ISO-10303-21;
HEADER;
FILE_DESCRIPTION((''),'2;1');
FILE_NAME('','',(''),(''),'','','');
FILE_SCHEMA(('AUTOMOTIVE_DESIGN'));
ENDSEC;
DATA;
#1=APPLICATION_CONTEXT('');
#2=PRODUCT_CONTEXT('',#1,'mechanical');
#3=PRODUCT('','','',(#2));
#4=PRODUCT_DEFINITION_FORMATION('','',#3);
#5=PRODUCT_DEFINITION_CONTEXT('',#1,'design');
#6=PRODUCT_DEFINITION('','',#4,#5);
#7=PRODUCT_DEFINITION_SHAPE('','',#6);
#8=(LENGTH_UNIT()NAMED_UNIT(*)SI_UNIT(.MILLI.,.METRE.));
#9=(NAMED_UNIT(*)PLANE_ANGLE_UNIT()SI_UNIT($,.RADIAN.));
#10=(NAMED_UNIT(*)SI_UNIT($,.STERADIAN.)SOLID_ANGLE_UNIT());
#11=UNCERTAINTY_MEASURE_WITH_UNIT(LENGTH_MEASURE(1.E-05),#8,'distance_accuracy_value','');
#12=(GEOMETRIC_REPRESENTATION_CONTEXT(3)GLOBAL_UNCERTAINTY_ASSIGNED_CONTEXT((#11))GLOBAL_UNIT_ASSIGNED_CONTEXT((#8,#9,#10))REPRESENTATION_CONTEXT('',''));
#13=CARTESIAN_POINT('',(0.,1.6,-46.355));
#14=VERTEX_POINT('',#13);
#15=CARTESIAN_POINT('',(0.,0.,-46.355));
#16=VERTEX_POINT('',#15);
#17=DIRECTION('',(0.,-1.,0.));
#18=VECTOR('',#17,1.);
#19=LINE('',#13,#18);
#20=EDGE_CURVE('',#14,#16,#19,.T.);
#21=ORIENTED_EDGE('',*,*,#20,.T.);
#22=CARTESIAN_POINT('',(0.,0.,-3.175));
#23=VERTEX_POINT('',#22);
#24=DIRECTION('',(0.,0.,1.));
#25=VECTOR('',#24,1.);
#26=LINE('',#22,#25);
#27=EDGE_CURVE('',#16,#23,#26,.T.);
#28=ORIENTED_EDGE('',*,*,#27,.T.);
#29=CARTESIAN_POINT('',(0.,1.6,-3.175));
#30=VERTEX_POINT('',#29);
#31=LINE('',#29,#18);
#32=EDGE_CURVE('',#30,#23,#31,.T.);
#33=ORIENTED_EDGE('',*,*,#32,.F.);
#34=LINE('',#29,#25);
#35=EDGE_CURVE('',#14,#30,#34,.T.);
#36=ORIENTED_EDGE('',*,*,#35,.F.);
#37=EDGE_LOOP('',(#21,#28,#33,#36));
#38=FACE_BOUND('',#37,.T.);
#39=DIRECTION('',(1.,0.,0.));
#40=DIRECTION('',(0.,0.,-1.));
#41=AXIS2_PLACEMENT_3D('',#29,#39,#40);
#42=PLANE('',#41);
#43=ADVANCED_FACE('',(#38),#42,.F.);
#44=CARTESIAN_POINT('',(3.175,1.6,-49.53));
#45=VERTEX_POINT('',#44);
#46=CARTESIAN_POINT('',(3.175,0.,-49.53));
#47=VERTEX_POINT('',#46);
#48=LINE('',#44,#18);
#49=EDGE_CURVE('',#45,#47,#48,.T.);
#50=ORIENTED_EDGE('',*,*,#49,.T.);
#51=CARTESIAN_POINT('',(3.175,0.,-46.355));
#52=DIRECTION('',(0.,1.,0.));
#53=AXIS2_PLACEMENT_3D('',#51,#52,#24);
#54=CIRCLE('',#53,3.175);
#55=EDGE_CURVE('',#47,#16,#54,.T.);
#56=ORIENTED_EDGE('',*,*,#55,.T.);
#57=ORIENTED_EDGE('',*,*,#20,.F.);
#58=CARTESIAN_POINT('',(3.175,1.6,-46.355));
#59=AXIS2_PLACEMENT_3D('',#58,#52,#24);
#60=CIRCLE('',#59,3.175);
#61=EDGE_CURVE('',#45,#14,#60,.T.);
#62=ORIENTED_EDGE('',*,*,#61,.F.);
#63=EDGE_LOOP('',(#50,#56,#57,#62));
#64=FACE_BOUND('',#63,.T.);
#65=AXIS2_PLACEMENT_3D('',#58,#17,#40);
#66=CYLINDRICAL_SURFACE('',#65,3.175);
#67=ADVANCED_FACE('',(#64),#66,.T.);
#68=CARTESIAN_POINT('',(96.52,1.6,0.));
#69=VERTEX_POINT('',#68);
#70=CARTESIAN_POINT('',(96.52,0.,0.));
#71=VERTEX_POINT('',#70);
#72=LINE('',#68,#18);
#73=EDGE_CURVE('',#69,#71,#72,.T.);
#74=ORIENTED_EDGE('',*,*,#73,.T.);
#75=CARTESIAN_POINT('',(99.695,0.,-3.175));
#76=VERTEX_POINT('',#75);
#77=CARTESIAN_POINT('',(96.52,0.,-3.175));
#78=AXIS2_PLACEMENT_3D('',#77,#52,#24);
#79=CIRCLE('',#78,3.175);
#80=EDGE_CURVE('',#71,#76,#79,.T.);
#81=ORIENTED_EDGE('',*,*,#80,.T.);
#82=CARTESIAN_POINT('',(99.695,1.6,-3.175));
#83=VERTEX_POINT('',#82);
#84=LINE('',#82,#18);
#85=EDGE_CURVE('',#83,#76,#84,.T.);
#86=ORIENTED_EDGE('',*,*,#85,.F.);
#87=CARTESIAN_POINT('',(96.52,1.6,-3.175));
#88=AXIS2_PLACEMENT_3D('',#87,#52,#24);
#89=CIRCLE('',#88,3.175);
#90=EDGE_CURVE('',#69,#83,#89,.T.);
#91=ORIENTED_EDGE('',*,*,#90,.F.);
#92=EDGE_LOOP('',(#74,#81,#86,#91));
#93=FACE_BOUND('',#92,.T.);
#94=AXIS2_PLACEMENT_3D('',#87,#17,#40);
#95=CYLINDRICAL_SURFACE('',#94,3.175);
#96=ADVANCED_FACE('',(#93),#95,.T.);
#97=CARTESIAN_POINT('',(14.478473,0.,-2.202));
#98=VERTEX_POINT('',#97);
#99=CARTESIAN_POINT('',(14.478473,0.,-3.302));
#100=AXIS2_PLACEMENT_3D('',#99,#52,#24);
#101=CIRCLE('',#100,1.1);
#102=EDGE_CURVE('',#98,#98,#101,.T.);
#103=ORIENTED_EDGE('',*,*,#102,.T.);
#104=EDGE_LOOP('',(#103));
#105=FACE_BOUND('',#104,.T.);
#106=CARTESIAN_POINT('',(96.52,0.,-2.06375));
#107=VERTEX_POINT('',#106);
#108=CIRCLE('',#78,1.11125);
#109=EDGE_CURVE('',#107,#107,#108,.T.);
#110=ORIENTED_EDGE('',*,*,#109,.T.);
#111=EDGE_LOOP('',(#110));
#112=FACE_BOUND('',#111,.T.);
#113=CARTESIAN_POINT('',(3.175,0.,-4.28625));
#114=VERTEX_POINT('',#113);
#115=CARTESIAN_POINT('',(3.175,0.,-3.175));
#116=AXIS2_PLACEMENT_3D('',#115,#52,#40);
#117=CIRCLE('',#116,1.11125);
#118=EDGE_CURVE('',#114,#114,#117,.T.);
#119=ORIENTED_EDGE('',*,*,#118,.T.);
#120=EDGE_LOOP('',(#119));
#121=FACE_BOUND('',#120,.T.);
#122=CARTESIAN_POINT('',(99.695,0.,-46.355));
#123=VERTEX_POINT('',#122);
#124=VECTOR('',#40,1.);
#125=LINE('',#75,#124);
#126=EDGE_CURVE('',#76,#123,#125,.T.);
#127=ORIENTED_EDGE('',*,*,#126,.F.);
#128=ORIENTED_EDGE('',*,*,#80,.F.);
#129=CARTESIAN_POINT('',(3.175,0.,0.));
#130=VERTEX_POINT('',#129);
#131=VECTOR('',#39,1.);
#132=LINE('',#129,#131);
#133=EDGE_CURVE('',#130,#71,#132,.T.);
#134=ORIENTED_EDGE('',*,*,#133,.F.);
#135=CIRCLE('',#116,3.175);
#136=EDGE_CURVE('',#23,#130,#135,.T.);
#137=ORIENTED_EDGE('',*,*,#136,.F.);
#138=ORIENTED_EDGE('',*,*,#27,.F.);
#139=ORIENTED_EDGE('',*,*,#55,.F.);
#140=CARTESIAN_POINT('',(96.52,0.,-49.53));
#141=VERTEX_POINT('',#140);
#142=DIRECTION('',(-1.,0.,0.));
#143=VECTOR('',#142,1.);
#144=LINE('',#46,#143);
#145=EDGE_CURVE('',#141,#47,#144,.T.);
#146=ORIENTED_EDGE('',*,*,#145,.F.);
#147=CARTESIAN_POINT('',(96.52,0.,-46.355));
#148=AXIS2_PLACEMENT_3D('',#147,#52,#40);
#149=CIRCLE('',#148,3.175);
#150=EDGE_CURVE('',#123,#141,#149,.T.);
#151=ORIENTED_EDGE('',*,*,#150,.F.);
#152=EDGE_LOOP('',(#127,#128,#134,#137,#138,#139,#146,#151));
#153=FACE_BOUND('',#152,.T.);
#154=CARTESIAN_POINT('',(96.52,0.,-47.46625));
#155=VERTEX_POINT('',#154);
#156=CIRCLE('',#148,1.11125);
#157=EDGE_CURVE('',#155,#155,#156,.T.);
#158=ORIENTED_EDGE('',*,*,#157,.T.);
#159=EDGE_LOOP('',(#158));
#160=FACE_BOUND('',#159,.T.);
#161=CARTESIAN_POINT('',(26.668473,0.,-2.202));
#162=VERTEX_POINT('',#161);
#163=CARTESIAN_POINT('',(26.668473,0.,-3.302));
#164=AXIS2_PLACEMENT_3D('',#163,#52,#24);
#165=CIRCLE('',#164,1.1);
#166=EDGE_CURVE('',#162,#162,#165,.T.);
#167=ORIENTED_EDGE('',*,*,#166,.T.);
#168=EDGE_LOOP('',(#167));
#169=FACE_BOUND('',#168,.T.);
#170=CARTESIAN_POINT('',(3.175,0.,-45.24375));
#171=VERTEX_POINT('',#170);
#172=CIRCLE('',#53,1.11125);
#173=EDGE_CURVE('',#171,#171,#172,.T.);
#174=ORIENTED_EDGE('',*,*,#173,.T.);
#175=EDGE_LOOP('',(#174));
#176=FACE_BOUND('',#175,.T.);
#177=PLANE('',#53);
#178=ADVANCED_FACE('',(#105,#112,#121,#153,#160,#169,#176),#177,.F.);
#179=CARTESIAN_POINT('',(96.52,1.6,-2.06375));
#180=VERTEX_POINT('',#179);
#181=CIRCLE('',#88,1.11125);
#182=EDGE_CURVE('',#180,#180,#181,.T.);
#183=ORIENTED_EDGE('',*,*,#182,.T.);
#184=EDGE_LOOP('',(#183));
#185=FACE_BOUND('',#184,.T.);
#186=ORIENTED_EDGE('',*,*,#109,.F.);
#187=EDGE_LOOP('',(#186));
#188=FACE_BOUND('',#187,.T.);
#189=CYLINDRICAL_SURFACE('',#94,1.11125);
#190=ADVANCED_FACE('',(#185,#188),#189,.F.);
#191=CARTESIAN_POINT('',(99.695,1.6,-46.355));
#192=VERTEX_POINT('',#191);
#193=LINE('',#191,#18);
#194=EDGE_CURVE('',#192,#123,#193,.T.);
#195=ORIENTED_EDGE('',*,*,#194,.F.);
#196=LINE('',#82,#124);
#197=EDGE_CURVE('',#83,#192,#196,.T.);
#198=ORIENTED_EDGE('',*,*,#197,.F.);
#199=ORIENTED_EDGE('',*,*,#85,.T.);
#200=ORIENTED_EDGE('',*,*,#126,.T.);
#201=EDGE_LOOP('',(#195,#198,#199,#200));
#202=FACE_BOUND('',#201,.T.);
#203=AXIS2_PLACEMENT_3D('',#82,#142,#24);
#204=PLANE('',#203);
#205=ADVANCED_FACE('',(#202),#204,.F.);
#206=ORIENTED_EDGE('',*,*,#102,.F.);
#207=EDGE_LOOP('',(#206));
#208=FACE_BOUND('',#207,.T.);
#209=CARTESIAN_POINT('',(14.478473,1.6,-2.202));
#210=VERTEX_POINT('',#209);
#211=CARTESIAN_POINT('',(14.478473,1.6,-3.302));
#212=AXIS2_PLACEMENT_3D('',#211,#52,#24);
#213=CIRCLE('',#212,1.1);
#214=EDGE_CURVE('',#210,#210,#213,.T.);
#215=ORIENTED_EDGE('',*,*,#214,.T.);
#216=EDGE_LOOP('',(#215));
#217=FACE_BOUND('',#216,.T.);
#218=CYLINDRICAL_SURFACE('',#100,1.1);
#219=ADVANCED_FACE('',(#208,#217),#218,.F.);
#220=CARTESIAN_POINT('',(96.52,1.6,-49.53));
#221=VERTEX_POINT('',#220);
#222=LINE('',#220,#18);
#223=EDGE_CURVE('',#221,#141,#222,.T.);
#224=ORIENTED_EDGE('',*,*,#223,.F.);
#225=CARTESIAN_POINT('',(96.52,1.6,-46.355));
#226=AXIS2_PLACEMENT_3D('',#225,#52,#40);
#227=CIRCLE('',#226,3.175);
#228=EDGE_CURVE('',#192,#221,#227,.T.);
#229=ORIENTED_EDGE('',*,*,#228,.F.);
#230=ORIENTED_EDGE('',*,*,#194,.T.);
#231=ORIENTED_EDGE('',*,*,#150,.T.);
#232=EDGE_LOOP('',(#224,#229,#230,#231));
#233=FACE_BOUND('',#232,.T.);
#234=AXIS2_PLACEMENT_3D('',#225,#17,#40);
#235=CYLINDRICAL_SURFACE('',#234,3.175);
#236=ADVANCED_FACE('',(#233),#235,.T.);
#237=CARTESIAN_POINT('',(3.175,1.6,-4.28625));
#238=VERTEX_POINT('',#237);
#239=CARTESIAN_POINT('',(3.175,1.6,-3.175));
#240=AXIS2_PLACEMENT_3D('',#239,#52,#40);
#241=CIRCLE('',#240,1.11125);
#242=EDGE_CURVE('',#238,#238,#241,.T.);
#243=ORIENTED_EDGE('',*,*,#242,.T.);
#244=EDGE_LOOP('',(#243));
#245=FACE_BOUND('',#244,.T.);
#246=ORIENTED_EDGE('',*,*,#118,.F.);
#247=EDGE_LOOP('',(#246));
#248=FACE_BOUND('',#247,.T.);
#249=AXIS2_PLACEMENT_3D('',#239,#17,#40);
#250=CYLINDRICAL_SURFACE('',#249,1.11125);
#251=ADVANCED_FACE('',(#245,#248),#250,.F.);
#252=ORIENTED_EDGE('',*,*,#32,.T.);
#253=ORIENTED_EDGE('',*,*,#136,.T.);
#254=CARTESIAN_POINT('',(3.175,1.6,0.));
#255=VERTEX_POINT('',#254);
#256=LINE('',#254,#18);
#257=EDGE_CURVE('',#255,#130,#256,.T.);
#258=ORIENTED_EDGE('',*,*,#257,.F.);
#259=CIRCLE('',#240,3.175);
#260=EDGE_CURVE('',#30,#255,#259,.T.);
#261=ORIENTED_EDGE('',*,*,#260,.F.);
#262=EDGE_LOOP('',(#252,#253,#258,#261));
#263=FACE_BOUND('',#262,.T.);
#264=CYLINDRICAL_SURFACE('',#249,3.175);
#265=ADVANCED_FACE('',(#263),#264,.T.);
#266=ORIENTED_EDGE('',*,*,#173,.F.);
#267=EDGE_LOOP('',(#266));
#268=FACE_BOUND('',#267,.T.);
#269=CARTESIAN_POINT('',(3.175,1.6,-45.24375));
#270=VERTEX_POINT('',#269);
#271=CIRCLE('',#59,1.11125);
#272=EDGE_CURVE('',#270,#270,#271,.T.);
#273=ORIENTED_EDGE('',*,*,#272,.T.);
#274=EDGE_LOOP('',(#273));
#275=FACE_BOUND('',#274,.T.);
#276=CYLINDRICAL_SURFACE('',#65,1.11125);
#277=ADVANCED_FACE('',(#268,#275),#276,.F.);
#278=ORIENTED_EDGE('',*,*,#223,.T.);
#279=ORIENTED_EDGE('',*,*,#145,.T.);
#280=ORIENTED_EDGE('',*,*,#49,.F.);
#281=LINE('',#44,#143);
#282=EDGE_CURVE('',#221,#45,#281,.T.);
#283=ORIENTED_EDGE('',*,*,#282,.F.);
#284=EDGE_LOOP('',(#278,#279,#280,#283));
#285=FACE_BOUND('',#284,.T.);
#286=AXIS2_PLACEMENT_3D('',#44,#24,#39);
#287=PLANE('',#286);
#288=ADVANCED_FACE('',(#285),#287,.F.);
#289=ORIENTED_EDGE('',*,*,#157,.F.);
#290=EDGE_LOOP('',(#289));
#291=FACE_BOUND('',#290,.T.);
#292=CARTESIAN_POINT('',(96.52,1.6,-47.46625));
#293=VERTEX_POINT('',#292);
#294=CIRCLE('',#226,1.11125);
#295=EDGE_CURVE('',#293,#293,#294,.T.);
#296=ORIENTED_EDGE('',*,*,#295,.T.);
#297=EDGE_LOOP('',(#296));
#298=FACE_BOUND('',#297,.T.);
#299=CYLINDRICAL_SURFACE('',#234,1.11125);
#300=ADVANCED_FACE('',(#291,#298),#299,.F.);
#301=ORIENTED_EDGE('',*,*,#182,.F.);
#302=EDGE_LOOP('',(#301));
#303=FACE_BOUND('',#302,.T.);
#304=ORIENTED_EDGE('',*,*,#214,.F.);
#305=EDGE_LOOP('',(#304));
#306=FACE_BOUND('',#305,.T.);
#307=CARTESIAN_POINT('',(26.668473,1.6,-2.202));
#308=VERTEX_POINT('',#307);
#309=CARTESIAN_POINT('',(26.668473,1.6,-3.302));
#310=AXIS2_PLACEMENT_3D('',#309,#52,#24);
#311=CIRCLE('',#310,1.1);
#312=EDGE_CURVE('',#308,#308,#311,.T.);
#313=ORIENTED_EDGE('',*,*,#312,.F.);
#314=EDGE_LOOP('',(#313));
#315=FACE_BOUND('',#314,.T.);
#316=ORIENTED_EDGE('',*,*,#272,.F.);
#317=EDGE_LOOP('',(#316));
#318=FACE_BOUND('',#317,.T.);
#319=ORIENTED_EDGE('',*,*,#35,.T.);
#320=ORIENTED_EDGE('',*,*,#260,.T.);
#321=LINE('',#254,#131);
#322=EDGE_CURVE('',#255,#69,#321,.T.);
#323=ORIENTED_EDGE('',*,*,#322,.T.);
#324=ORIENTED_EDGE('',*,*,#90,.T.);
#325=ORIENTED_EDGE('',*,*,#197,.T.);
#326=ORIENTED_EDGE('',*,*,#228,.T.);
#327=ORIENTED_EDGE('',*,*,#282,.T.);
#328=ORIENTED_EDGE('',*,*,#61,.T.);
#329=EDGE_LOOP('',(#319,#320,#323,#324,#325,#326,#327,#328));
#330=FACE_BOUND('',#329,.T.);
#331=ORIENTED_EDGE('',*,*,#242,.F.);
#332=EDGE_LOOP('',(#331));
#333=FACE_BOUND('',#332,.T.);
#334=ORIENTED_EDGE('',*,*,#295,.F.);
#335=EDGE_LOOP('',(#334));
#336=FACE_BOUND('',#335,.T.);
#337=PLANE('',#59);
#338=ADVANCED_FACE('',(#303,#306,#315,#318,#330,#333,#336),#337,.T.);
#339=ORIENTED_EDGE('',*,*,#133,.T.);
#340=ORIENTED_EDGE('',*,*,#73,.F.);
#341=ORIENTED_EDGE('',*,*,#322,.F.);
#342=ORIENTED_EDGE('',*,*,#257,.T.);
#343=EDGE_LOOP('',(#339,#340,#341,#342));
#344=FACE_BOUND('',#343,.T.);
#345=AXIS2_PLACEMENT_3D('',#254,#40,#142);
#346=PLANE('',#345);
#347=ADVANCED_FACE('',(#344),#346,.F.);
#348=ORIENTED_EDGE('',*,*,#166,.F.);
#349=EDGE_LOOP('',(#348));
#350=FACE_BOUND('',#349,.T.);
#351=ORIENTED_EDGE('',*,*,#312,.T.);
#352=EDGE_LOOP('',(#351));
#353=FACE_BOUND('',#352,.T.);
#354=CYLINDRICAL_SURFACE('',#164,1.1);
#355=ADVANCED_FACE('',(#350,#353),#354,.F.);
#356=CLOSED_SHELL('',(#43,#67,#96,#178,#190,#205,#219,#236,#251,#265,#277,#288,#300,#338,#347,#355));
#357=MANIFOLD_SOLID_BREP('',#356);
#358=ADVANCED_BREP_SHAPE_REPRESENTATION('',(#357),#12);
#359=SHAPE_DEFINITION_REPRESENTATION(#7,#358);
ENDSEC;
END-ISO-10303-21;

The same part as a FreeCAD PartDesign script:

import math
import FreeCAD as App
import Part
import Sketcher
Q = App.Units.Quantity

doc = App.newDocument("Part")
body = doc.addObject("PartDesign::Body", "Body")

# Sketch on XZ plane
sketch1 = body.newObject("Sketcher::SketchObject", "Sketch")
sketch1.AttachmentSupport = (doc.getObject("XZ_Plane"), [""])
sketch1.MapMode = "FlatFace"
sketch1.addGeometry(Part.LineSegment(App.Vector(3.2, 0, 0), App.Vector(96.5, 0, 0)), False)
sketch1.addGeometry(Part.ArcOfCircle(Part.Circle(App.Vector(96.5, -3.2, 0), App.Vector(0, 0, 1), 3.2), math.radians(0), math.radians(90)), False)
sketch1.addGeometry(Part.LineSegment(App.Vector(99.7, -3.2, 0), App.Vector(99.7, -46.4, 0)), False)
sketch1.addGeometry(Part.ArcOfCircle(Part.Circle(App.Vector(96.5, -46.4, 0), App.Vector(0, 0, 1), 3.2), math.radians(-90), math.radians(0)), False)
sketch1.addGeometry(Part.LineSegment(App.Vector(96.5, -49.5, 0), App.Vector(3.2, -49.5, 0)), False)
sketch1.addGeometry(Part.ArcOfCircle(Part.Circle(App.Vector(3.2, -46.4, 0), App.Vector(0, 0, 1), 3.2), math.radians(-180), math.radians(-90)), False)
sketch1.addGeometry(Part.LineSegment(App.Vector(0, -46.4, 0), App.Vector(0, -3.2, 0)), False)
sketch1.addGeometry(Part.ArcOfCircle(Part.Circle(App.Vector(3.2, -3.2, 0), App.Vector(0, 0, 1), 3.2), math.radians(90), math.radians(180)), False)
sketch1.addGeometry(Part.Circle(App.Vector(3.2, -3.2, 0), App.Vector(0, 0, 1), 1.1), False)
sketch1.addGeometry(Part.Circle(App.Vector(96.5, -3.2, 0), App.Vector(0, 0, 1), 1.1), False)
sketch1.addGeometry(Part.Circle(App.Vector(3.2, -46.4, 0), App.Vector(0, 0, 1), 1.1), False)
sketch1.addGeometry(Part.Circle(App.Vector(96.5, -46.4, 0), App.Vector(0, 0, 1), 1.1), False)
sketch1.addConstraint(Sketcher.Constraint("Tangent", 0, 2, 1, 2))
sketch1.addConstraint(Sketcher.Constraint("Tangent", 1, 1, 2, 1))
sketch1.addConstraint(Sketcher.Constraint("Tangent", 2, 2, 3, 2))
sketch1.addConstraint(Sketcher.Constraint("Tangent", 3, 1, 4, 1))
sketch1.addConstraint(Sketcher.Constraint("Tangent", 4, 2, 5, 2))
sketch1.addConstraint(Sketcher.Constraint("Tangent", 5, 1, 6, 1))
sketch1.addConstraint(Sketcher.Constraint("Tangent", 6, 2, 7, 2))
sketch1.addConstraint(Sketcher.Constraint("Tangent", 7, 1, 0, 1))
sketch1.addConstraint(Sketcher.Constraint("Horizontal", 0))
sketch1.addConstraint(Sketcher.Constraint("Vertical", 2))
sketch1.addConstraint(Sketcher.Constraint("Horizontal", 4))
sketch1.addConstraint(Sketcher.Constraint("Vertical", 6))
sketch1.addConstraint(Sketcher.Constraint("Coincident", 8, 3, 7, 3))
sketch1.addConstraint(Sketcher.Constraint("Coincident", 9, 3, 1, 3))
sketch1.addConstraint(Sketcher.Constraint("Coincident", 10, 3, 5, 3))
sketch1.addConstraint(Sketcher.Constraint("Coincident", 11, 3, 3, 3))
sketch1.addConstraint(Sketcher.Constraint("Equal", 1, 3))
sketch1.addConstraint(Sketcher.Constraint("Equal", 3, 5))
sketch1.addConstraint(Sketcher.Constraint("Equal", 5, 7))
sketch1.addConstraint(Sketcher.Constraint("Equal", 8, 9))
sketch1.addConstraint(Sketcher.Constraint("Equal", 9, 10))
sketch1.addConstraint(Sketcher.Constraint("Equal", 10, 11))
sketch1.addConstraint(Sketcher.Constraint("PointOnObject", 0, 2, -1))
sketch1.addConstraint(Sketcher.Constraint("PointOnObject", 5, 1, -2))
sketch1.addConstraint(Sketcher.Constraint("DistanceY", 2, 2, 2, 1, Q("1.7 in")))
sketch1.addConstraint(Sketcher.Constraint("Radius", 1, Q("0.125 in")))
sketch1.addConstraint(Sketcher.Constraint("Diameter", 8, Q("0.0875 in")))
sketch1.addConstraint(Sketcher.Constraint("DistanceX", -1, 1, 1, 3, Q("3.8 in")))
pad1 = body.newObject("PartDesign::Pad", "Pad")
pad1.Profile = sketch1
pad1.Length = 1.6
pad1.Reversed = True

# Sketch on XZ plane
sketch2 = body.newObject("Sketcher::SketchObject", "Sketch001")
sketch2.AttachmentSupport = (doc.getObject("XZ_Plane"), [""])
sketch2.MapMode = "FlatFace"
sketch2.AttachmentOffset = App.Placement(App.Vector(0, 0, -1.6), App.Rotation())
sketch2.addGeometry(Part.Circle(App.Vector(14.5, -3.3, 0), App.Vector(0, 0, 1), 1.1), False)
sketch2.addGeometry(Part.Circle(App.Vector(26.7, -3.3, 0), App.Vector(0, 0, 1), 1.1), False)
sketch2.addConstraint(Sketcher.Constraint("Equal", 0, 1))
sketch2.addConstraint(Sketcher.Constraint("Horizontal", 0, 3, 1, 3))
sketch2.addConstraint(Sketcher.Constraint("Diameter", 0, Q("2.2 mm")))
sketch2.addConstraint(Sketcher.Constraint("DistanceY", 0, 3, -1, 1, Q("0.13 in")))
sketch2.addConstraint(Sketcher.Constraint("DistanceX", 0, 3, 1, 3, Q("12.19 mm")))
sketch2.addConstraint(Sketcher.Constraint("DistanceX", -1, 1, 0, 3, Q("14.478473 mm")))
pocket1 = body.newObject("PartDesign::Pocket", "Pocket")
pocket1.Profile = sketch2
pocket1.Type = "ThroughAll"
pocket1.Reversed = True

doc.recompute()
